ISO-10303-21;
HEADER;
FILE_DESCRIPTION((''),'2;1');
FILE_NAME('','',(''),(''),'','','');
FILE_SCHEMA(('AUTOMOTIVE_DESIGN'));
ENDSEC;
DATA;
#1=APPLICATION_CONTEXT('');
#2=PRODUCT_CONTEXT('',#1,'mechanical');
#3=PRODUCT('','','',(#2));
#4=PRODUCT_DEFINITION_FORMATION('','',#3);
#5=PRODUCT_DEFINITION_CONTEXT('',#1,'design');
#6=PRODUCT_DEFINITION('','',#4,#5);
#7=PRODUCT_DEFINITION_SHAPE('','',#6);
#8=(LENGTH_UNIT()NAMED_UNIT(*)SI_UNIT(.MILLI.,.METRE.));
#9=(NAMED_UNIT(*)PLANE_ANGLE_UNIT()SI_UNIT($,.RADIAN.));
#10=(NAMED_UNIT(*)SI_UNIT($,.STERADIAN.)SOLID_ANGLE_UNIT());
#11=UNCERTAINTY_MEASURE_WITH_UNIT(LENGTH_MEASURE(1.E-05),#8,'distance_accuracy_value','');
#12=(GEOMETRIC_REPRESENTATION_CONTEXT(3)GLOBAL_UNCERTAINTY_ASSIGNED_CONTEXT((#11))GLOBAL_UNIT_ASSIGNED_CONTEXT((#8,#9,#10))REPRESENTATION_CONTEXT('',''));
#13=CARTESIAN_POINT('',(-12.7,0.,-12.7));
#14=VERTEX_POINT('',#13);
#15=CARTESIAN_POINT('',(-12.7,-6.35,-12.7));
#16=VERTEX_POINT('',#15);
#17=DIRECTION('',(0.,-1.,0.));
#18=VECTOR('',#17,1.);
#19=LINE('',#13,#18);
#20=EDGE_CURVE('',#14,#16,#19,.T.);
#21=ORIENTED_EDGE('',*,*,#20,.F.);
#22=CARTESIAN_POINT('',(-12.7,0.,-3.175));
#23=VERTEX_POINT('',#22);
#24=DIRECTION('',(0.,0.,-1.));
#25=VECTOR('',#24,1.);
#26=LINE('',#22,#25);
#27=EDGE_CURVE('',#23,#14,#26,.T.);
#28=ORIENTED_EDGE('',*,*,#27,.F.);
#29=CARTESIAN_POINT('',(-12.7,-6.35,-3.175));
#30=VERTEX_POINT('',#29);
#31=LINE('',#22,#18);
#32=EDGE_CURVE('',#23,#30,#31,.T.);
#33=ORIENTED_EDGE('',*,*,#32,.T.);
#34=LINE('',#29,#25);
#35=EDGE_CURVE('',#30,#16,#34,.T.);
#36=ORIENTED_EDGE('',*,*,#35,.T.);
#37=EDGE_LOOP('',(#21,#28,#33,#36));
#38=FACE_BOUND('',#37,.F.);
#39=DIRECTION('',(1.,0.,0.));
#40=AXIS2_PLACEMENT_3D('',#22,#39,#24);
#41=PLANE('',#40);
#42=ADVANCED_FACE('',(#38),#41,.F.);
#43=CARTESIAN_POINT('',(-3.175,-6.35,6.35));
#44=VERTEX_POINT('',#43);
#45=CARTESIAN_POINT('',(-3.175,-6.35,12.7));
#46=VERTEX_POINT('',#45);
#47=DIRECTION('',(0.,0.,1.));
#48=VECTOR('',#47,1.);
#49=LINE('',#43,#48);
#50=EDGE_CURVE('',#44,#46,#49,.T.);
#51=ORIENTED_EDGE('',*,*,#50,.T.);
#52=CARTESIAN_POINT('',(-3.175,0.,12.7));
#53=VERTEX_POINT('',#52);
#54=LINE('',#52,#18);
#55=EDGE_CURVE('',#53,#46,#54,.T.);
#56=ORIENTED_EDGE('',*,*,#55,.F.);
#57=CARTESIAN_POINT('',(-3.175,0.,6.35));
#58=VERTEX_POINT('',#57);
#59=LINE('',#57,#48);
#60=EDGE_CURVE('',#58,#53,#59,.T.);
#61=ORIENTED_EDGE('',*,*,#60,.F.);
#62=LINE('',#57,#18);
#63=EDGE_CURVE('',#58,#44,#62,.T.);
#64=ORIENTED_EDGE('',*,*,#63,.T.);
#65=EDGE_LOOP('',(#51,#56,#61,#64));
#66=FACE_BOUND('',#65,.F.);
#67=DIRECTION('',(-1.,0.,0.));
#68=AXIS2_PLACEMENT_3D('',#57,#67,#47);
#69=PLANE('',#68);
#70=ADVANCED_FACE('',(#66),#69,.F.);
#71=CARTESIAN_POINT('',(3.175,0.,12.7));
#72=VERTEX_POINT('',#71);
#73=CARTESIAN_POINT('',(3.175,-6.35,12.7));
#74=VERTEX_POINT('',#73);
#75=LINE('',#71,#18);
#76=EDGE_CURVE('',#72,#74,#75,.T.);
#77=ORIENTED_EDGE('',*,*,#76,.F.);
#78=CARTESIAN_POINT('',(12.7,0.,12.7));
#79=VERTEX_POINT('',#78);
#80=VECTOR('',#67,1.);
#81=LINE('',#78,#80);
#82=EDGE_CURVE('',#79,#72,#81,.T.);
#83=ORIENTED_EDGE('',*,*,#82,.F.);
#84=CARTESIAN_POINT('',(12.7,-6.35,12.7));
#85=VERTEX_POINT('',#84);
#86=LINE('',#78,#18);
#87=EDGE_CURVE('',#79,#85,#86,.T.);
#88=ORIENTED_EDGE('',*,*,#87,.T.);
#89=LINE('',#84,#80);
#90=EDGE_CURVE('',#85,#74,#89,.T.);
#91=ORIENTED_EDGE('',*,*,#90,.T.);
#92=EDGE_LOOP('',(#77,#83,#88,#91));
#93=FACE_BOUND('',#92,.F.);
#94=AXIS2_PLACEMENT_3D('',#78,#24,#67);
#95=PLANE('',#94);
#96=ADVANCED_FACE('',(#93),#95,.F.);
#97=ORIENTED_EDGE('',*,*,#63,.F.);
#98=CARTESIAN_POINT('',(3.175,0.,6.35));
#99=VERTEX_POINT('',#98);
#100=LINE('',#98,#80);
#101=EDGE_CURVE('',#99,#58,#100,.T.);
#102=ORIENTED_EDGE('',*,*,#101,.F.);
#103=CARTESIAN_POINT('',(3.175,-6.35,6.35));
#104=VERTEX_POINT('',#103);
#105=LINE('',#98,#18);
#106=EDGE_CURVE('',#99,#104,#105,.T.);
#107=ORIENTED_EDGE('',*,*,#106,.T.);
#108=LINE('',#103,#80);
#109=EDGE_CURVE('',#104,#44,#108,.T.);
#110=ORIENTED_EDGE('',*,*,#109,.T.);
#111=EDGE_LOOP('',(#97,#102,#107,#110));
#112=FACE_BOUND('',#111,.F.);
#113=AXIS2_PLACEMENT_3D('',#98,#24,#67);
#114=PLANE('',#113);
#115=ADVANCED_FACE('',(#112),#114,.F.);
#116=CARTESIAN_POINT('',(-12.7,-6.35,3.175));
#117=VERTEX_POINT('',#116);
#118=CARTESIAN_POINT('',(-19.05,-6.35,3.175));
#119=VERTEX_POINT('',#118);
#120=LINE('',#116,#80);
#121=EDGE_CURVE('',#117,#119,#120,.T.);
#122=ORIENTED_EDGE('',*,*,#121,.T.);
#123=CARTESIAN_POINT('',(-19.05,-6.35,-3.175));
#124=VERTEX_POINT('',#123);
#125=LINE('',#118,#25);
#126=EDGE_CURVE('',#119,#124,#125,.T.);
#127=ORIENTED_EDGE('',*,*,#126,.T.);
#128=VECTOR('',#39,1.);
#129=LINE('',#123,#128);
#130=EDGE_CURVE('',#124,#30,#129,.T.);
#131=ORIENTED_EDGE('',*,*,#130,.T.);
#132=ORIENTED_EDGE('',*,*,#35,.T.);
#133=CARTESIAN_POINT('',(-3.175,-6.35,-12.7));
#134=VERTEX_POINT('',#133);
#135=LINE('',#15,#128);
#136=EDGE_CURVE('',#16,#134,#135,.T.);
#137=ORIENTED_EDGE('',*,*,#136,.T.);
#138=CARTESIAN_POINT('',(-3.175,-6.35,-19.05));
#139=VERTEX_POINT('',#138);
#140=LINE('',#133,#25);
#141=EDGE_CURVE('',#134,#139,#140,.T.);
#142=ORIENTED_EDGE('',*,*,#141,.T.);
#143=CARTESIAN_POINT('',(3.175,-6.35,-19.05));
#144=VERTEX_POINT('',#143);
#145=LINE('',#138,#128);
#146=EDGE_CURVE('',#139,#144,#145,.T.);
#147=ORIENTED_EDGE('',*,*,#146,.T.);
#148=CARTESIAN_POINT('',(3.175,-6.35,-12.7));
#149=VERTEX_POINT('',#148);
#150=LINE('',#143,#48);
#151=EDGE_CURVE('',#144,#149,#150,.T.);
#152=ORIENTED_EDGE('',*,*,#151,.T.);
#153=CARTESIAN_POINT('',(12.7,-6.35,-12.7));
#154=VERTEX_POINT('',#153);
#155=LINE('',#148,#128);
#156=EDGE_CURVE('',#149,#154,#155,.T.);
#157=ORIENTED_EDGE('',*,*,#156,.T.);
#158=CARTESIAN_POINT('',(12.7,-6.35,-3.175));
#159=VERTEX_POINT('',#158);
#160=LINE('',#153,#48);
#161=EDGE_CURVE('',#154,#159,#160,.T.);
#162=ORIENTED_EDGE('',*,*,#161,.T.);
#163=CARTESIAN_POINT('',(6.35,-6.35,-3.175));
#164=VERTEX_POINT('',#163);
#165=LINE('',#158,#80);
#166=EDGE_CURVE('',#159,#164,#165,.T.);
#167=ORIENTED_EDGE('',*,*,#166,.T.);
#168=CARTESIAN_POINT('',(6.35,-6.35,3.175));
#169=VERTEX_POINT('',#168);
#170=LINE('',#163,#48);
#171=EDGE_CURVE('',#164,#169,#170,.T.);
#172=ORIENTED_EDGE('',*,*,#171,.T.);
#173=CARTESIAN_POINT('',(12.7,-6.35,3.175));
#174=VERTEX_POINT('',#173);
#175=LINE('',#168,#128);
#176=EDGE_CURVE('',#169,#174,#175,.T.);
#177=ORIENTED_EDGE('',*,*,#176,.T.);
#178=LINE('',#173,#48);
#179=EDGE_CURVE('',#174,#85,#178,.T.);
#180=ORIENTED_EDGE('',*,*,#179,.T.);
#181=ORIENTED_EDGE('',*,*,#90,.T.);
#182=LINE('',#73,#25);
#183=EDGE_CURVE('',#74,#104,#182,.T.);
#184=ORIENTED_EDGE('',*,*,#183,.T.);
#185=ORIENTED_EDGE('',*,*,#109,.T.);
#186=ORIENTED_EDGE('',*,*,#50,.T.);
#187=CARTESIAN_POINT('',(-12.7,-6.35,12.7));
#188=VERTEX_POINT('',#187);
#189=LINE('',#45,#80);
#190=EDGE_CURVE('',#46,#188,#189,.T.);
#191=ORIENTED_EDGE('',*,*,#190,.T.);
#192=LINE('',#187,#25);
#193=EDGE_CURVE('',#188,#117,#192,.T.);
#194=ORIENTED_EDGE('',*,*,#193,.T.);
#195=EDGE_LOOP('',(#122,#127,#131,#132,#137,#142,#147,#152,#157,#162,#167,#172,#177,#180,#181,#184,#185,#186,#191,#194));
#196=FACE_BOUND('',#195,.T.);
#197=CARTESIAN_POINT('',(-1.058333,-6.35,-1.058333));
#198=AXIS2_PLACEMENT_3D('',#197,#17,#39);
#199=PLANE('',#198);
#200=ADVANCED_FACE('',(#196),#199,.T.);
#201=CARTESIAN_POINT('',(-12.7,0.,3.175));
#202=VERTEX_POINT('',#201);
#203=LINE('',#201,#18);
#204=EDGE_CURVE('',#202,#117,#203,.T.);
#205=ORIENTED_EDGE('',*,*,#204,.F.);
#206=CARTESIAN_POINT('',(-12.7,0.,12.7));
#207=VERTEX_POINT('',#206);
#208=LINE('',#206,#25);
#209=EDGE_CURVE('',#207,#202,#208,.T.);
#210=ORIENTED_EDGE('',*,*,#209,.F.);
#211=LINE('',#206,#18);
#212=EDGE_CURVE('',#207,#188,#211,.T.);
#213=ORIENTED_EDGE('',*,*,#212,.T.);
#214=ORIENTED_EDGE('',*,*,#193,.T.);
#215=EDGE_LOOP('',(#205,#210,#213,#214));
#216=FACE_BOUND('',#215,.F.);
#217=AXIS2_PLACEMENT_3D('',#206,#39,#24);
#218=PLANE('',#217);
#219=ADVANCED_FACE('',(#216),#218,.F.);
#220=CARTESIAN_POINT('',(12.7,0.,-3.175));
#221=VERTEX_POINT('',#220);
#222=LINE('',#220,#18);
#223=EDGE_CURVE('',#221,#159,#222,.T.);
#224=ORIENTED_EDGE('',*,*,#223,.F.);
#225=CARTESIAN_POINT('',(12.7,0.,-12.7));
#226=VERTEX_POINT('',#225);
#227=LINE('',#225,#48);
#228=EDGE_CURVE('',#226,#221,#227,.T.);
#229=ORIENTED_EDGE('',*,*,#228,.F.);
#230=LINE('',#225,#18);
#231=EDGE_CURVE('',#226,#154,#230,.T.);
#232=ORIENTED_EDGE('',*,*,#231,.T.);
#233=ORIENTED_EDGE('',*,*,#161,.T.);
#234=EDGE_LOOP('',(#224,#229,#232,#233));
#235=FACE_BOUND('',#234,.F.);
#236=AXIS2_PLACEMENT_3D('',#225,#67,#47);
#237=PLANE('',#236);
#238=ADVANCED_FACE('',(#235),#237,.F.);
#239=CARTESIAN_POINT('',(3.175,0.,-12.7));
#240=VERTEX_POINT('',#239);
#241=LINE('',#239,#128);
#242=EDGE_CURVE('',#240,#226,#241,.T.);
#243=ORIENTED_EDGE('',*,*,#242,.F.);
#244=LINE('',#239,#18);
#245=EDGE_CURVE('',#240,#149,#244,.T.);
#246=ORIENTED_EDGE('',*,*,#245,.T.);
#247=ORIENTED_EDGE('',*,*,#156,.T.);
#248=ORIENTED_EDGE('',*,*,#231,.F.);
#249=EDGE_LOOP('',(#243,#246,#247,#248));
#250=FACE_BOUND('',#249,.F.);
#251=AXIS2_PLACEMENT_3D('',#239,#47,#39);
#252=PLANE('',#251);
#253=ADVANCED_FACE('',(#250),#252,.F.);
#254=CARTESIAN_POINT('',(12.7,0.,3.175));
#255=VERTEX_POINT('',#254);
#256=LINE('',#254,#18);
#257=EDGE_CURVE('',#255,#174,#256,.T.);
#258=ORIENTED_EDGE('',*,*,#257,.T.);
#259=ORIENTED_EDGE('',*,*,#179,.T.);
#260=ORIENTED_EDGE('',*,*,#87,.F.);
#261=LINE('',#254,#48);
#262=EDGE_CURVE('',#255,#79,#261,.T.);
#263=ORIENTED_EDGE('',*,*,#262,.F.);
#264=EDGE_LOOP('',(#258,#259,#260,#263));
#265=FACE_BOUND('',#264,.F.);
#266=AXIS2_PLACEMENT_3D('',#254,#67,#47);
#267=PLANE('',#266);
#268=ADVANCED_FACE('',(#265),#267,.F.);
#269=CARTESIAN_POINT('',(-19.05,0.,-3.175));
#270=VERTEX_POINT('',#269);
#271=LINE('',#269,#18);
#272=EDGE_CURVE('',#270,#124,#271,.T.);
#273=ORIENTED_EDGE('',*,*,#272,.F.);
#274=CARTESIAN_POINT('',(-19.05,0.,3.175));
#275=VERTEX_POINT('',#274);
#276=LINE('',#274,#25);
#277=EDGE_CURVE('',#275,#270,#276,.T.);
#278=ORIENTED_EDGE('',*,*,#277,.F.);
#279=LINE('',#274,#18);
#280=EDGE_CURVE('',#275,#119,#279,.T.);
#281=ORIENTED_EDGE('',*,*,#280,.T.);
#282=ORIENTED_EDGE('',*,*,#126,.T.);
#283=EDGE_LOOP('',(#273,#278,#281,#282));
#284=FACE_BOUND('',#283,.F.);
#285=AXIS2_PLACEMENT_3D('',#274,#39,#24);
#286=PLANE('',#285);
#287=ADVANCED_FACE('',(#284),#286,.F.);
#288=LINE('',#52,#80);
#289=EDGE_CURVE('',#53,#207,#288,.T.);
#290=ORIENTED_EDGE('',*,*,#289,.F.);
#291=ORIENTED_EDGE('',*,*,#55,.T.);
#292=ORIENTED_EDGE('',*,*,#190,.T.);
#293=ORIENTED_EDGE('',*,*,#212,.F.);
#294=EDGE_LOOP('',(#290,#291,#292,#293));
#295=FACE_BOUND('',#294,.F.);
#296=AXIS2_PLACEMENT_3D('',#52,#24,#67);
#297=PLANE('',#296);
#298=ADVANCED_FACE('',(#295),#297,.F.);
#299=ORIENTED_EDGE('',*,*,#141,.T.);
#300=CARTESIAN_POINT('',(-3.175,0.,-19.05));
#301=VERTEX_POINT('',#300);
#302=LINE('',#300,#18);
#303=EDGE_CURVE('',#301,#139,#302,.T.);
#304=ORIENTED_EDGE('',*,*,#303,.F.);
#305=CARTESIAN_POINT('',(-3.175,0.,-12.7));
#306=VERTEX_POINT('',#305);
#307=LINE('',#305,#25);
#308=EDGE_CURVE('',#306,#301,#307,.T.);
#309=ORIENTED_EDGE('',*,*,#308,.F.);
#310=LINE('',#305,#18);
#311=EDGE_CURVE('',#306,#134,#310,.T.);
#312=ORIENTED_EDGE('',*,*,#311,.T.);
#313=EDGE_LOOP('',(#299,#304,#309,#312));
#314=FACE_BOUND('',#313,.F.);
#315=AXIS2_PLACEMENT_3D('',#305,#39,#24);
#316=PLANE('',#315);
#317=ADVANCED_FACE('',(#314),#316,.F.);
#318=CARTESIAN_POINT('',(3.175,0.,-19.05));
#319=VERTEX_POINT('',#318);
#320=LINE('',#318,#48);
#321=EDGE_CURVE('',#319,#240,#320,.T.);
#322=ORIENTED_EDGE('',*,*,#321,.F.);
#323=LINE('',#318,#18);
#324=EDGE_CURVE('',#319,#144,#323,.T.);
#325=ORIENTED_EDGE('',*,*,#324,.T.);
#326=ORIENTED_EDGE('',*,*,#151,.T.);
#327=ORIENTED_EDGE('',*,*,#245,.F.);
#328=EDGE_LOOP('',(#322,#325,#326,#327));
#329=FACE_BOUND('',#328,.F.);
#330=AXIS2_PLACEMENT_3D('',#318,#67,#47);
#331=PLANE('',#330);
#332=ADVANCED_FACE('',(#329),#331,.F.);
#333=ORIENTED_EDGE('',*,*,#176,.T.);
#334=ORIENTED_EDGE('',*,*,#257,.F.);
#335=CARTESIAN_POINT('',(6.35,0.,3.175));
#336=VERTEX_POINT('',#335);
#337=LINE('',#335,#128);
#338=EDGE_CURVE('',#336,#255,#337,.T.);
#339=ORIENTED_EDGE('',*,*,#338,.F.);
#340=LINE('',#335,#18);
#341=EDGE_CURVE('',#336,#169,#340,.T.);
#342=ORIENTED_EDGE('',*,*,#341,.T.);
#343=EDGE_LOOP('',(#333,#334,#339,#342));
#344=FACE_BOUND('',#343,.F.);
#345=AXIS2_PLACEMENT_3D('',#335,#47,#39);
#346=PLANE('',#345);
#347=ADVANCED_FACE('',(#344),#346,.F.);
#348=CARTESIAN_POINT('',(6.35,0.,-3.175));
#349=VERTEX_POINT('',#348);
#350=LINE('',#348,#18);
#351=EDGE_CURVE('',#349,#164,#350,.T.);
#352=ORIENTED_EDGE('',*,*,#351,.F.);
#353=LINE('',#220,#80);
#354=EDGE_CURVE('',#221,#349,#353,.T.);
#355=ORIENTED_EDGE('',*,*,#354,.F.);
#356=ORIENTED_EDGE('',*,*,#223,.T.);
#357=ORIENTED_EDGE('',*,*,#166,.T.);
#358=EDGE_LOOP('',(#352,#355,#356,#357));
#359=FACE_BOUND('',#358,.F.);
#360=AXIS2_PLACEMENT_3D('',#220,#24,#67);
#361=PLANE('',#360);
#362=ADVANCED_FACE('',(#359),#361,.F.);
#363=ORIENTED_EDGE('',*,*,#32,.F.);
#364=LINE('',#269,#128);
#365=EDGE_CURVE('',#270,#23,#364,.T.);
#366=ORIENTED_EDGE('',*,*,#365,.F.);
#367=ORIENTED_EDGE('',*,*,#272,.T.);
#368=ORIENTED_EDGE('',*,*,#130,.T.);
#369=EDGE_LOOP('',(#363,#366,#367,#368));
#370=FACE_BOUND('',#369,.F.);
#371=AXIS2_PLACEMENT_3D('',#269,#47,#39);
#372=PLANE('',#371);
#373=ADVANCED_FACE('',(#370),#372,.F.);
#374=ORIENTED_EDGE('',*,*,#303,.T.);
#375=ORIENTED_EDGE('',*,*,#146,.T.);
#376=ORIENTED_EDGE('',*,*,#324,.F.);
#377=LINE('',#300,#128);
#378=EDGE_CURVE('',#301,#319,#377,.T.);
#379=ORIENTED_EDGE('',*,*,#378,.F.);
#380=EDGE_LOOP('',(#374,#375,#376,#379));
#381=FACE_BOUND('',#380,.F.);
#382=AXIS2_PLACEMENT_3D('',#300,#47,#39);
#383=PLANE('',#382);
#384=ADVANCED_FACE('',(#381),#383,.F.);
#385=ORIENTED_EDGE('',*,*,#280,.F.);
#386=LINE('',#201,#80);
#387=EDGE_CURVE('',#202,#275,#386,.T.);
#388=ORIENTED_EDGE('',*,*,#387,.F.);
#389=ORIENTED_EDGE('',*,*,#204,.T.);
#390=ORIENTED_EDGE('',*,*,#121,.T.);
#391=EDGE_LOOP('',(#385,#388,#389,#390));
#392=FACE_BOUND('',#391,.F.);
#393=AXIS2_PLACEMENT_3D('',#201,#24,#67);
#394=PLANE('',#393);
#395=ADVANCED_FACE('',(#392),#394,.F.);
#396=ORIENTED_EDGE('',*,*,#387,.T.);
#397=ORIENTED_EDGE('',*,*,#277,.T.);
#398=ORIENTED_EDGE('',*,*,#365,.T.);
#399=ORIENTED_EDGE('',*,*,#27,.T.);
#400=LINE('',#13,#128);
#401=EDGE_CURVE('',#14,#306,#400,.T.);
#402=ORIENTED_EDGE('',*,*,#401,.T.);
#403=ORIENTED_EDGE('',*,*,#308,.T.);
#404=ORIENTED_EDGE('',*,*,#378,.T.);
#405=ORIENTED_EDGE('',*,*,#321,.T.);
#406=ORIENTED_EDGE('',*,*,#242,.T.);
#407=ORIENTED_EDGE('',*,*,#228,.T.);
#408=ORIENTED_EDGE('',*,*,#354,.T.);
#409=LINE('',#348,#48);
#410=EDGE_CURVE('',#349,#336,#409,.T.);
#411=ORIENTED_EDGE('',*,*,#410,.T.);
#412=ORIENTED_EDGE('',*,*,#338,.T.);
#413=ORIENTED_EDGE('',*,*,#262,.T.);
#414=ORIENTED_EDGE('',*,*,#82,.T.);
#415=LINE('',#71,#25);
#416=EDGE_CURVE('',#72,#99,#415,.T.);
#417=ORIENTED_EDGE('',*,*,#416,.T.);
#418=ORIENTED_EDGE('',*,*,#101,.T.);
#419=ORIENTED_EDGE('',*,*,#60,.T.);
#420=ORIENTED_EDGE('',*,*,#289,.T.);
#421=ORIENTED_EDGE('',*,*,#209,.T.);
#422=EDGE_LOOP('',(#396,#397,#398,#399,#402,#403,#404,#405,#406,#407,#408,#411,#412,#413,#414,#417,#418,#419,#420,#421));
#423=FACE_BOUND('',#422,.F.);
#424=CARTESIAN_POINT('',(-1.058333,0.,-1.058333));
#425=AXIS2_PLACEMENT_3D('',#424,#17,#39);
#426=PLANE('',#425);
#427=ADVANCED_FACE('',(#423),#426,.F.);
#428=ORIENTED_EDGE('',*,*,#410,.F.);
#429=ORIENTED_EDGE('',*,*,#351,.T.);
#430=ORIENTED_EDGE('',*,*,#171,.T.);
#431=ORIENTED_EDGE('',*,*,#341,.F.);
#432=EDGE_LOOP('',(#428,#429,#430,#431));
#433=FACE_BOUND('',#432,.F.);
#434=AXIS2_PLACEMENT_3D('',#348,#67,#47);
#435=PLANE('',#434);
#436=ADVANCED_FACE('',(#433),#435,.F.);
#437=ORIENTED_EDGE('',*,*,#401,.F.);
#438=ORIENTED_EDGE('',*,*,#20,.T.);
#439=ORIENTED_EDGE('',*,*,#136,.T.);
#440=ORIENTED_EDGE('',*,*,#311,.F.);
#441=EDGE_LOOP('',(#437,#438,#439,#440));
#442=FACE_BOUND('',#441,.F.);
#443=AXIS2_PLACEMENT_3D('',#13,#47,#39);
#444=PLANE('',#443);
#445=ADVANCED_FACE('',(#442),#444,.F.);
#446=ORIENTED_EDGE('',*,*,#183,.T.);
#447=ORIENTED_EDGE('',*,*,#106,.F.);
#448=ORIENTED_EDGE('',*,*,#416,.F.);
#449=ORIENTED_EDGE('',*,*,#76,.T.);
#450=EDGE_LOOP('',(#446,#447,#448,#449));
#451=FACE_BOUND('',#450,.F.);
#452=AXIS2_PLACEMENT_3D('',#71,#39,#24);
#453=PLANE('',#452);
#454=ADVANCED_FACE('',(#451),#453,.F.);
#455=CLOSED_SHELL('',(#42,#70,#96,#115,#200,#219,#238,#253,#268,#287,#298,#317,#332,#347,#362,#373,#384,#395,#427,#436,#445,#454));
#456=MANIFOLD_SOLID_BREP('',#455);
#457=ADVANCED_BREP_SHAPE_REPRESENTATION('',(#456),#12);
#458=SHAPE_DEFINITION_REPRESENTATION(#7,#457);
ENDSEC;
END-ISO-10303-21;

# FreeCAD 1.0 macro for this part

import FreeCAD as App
import Part
import Sketcher
Q = App.Units.Quantity

doc = App.newDocument("Part")
body = doc.addObject("PartDesign::Body", "Body")

# Sketch on XZ plane
sketch1 = body.newObject("Sketcher::SketchObject", "Sketch")
sketch1.AttachmentSupport = (doc.getObject("XZ_Plane"), [""])
sketch1.MapMode = "FlatFace"
sketch1.addGeometry([
    Part.LineSegment(App.Vector(-3.175, 6.35, 0), App.Vector(-3.175, 12.7, 0)),  # 0
    Part.LineSegment(App.Vector(-3.175, 12.7, 0), App.Vector(-12.7, 12.7, 0)),  # 1
    Part.LineSegment(App.Vector(-12.7, 12.7, 0), App.Vector(-12.7, 3.175, 0)),  # 2
    Part.LineSegment(App.Vector(-12.7, 3.175, 0), App.Vector(-19.05, 3.175, 0)),  # 3
    Part.LineSegment(App.Vector(-19.05, 3.175, 0), App.Vector(-19.05, -3.175, 0)),  # 4
    Part.LineSegment(App.Vector(-19.05, -3.175, 0), App.Vector(-12.7, -3.175, 0)),  # 5
    Part.LineSegment(App.Vector(-12.7, -3.175, 0), App.Vector(-12.7, -12.7, 0)),  # 6
    Part.LineSegment(App.Vector(-12.7, -12.7, 0), App.Vector(-3.175, -12.7, 0)),  # 7
    Part.LineSegment(App.Vector(-3.175, -12.7, 0), App.Vector(-3.175, -19.05, 0)),  # 8
    Part.LineSegment(App.Vector(-3.175, -19.05, 0), App.Vector(3.175, -19.05, 0)),  # 9
    Part.LineSegment(App.Vector(3.175, -19.05, 0), App.Vector(3.175, -12.7, 0)),  # 10
    Part.LineSegment(App.Vector(3.175, -12.7, 0), App.Vector(12.7, -12.7, 0)),  # 11
    Part.LineSegment(App.Vector(12.7, -12.7, 0), App.Vector(12.7, -3.175, 0)),  # 12
    Part.LineSegment(App.Vector(12.7, -3.175, 0), App.Vector(6.35, -3.175, 0)),  # 13
    Part.LineSegment(App.Vector(6.35, -3.175, 0), App.Vector(6.35, 3.175, 0)),  # 14
    Part.LineSegment(App.Vector(6.35, 3.175, 0), App.Vector(12.7, 3.175, 0)),  # 15
    Part.LineSegment(App.Vector(12.7, 3.175, 0), App.Vector(12.7, 12.7, 0)),  # 16
    Part.LineSegment(App.Vector(12.7, 12.7, 0), App.Vector(3.175, 12.7, 0)),  # 17
    Part.LineSegment(App.Vector(3.175, 12.7, 0), App.Vector(3.175, 6.35, 0)),  # 18
    Part.LineSegment(App.Vector(3.175, 6.35, 0), App.Vector(-3.175, 6.35, 0)),  # 19
], False)
sketch1.addConstraint([
    Sketcher.Constraint("Coincident", 0, 2, 1, 1),
    Sketcher.Constraint("Coincident", 1, 2, 2, 1),
    Sketcher.Constraint("Coincident", 2, 2, 3, 1),
    Sketcher.Constraint("Coincident", 3, 2, 4, 1),
    Sketcher.Constraint("Coincident", 4, 2, 5, 1),
    Sketcher.Constraint("Coincident", 5, 2, 6, 1),
    Sketcher.Constraint("Coincident", 6, 2, 7, 1),
    Sketcher.Constraint("Coincident", 7, 2, 8, 1),
    Sketcher.Constraint("Coincident", 8, 2, 9, 1),
    Sketcher.Constraint("Coincident", 9, 2, 10, 1),
    Sketcher.Constraint("Coincident", 10, 2, 11, 1),
    Sketcher.Constraint("Coincident", 11, 2, 12, 1),
    Sketcher.Constraint("Coincident", 12, 2, 13, 1),
    Sketcher.Constraint("Coincident", 13, 2, 14, 1),
    Sketcher.Constraint("Coincident", 14, 2, 15, 1),
    Sketcher.Constraint("Coincident", 15, 2, 16, 1),
    Sketcher.Constraint("Coincident", 16, 2, 17, 1),
    Sketcher.Constraint("Coincident", 17, 2, 18, 1),
    Sketcher.Constraint("Coincident", 18, 2, 19, 1),
    Sketcher.Constraint("Coincident", 19, 2, 0, 1),
    Sketcher.Constraint("Vertical", 0),
    Sketcher.Constraint("Horizontal", 1),
    Sketcher.Constraint("Vertical", 2),
    Sketcher.Constraint("Horizontal", 3),
    Sketcher.Constraint("Vertical", 4),
    Sketcher.Constraint("Horizontal", 5),
    Sketcher.Constraint("Vertical", 6),
    Sketcher.Constraint("Horizontal", 7),
    Sketcher.Constraint("Vertical", 8),
    Sketcher.Constraint("Horizontal", 9),
    Sketcher.Constraint("Vertical", 10),
    Sketcher.Constraint("Horizontal", 11),
    Sketcher.Constraint("Vertical", 12),
    Sketcher.Constraint("Horizontal", 13),
    Sketcher.Constraint("Vertical", 14),
    Sketcher.Constraint("Horizontal", 15),
    Sketcher.Constraint("Vertical", 16),
    Sketcher.Constraint("Horizontal", 17),
    Sketcher.Constraint("Vertical", 18),
    Sketcher.Constraint("Horizontal", 19),
    Sketcher.Constraint("Symmetric", 0, 2, 10, 2, -1, 1),
    Sketcher.Constraint("Symmetric", 2, 2, 12, 2, -1, 1),
    Sketcher.Constraint("Symmetric", 5, 2, 15, 2, -1, 1),
    Sketcher.Constraint("Symmetric", 7, 2, 17, 2, -1, 1),
    Sketcher.Constraint("Symmetric", 7, 2, 10, 2, -2),
    Sketcher.Constraint("Symmetric", 5, 2, 12, 2, -2),
    Sketcher.Constraint("Equal", 5, 9),
    Sketcher.Constraint("Equal", 9, 13),
    Sketcher.Constraint("Equal", 19, 0),
    Sketcher.Constraint("Equal", 17, 2),
    Sketcher.Constraint("Equal", 0, 4),
    Sketcher.Constraint("Equal", 4, 8),
    Sketcher.Constraint("DistanceY", 6, 2, 1, 2, Q("1 in")),
    Sketcher.Constraint("DistanceX", 3, 2, 3, 1, Q("0.25 in")),
])
pad1 = body.newObject("PartDesign::Pad", "Pad")
pad1.Profile = sketch1
pad1.Length = Q("0.25 in")

doc.recompute()
